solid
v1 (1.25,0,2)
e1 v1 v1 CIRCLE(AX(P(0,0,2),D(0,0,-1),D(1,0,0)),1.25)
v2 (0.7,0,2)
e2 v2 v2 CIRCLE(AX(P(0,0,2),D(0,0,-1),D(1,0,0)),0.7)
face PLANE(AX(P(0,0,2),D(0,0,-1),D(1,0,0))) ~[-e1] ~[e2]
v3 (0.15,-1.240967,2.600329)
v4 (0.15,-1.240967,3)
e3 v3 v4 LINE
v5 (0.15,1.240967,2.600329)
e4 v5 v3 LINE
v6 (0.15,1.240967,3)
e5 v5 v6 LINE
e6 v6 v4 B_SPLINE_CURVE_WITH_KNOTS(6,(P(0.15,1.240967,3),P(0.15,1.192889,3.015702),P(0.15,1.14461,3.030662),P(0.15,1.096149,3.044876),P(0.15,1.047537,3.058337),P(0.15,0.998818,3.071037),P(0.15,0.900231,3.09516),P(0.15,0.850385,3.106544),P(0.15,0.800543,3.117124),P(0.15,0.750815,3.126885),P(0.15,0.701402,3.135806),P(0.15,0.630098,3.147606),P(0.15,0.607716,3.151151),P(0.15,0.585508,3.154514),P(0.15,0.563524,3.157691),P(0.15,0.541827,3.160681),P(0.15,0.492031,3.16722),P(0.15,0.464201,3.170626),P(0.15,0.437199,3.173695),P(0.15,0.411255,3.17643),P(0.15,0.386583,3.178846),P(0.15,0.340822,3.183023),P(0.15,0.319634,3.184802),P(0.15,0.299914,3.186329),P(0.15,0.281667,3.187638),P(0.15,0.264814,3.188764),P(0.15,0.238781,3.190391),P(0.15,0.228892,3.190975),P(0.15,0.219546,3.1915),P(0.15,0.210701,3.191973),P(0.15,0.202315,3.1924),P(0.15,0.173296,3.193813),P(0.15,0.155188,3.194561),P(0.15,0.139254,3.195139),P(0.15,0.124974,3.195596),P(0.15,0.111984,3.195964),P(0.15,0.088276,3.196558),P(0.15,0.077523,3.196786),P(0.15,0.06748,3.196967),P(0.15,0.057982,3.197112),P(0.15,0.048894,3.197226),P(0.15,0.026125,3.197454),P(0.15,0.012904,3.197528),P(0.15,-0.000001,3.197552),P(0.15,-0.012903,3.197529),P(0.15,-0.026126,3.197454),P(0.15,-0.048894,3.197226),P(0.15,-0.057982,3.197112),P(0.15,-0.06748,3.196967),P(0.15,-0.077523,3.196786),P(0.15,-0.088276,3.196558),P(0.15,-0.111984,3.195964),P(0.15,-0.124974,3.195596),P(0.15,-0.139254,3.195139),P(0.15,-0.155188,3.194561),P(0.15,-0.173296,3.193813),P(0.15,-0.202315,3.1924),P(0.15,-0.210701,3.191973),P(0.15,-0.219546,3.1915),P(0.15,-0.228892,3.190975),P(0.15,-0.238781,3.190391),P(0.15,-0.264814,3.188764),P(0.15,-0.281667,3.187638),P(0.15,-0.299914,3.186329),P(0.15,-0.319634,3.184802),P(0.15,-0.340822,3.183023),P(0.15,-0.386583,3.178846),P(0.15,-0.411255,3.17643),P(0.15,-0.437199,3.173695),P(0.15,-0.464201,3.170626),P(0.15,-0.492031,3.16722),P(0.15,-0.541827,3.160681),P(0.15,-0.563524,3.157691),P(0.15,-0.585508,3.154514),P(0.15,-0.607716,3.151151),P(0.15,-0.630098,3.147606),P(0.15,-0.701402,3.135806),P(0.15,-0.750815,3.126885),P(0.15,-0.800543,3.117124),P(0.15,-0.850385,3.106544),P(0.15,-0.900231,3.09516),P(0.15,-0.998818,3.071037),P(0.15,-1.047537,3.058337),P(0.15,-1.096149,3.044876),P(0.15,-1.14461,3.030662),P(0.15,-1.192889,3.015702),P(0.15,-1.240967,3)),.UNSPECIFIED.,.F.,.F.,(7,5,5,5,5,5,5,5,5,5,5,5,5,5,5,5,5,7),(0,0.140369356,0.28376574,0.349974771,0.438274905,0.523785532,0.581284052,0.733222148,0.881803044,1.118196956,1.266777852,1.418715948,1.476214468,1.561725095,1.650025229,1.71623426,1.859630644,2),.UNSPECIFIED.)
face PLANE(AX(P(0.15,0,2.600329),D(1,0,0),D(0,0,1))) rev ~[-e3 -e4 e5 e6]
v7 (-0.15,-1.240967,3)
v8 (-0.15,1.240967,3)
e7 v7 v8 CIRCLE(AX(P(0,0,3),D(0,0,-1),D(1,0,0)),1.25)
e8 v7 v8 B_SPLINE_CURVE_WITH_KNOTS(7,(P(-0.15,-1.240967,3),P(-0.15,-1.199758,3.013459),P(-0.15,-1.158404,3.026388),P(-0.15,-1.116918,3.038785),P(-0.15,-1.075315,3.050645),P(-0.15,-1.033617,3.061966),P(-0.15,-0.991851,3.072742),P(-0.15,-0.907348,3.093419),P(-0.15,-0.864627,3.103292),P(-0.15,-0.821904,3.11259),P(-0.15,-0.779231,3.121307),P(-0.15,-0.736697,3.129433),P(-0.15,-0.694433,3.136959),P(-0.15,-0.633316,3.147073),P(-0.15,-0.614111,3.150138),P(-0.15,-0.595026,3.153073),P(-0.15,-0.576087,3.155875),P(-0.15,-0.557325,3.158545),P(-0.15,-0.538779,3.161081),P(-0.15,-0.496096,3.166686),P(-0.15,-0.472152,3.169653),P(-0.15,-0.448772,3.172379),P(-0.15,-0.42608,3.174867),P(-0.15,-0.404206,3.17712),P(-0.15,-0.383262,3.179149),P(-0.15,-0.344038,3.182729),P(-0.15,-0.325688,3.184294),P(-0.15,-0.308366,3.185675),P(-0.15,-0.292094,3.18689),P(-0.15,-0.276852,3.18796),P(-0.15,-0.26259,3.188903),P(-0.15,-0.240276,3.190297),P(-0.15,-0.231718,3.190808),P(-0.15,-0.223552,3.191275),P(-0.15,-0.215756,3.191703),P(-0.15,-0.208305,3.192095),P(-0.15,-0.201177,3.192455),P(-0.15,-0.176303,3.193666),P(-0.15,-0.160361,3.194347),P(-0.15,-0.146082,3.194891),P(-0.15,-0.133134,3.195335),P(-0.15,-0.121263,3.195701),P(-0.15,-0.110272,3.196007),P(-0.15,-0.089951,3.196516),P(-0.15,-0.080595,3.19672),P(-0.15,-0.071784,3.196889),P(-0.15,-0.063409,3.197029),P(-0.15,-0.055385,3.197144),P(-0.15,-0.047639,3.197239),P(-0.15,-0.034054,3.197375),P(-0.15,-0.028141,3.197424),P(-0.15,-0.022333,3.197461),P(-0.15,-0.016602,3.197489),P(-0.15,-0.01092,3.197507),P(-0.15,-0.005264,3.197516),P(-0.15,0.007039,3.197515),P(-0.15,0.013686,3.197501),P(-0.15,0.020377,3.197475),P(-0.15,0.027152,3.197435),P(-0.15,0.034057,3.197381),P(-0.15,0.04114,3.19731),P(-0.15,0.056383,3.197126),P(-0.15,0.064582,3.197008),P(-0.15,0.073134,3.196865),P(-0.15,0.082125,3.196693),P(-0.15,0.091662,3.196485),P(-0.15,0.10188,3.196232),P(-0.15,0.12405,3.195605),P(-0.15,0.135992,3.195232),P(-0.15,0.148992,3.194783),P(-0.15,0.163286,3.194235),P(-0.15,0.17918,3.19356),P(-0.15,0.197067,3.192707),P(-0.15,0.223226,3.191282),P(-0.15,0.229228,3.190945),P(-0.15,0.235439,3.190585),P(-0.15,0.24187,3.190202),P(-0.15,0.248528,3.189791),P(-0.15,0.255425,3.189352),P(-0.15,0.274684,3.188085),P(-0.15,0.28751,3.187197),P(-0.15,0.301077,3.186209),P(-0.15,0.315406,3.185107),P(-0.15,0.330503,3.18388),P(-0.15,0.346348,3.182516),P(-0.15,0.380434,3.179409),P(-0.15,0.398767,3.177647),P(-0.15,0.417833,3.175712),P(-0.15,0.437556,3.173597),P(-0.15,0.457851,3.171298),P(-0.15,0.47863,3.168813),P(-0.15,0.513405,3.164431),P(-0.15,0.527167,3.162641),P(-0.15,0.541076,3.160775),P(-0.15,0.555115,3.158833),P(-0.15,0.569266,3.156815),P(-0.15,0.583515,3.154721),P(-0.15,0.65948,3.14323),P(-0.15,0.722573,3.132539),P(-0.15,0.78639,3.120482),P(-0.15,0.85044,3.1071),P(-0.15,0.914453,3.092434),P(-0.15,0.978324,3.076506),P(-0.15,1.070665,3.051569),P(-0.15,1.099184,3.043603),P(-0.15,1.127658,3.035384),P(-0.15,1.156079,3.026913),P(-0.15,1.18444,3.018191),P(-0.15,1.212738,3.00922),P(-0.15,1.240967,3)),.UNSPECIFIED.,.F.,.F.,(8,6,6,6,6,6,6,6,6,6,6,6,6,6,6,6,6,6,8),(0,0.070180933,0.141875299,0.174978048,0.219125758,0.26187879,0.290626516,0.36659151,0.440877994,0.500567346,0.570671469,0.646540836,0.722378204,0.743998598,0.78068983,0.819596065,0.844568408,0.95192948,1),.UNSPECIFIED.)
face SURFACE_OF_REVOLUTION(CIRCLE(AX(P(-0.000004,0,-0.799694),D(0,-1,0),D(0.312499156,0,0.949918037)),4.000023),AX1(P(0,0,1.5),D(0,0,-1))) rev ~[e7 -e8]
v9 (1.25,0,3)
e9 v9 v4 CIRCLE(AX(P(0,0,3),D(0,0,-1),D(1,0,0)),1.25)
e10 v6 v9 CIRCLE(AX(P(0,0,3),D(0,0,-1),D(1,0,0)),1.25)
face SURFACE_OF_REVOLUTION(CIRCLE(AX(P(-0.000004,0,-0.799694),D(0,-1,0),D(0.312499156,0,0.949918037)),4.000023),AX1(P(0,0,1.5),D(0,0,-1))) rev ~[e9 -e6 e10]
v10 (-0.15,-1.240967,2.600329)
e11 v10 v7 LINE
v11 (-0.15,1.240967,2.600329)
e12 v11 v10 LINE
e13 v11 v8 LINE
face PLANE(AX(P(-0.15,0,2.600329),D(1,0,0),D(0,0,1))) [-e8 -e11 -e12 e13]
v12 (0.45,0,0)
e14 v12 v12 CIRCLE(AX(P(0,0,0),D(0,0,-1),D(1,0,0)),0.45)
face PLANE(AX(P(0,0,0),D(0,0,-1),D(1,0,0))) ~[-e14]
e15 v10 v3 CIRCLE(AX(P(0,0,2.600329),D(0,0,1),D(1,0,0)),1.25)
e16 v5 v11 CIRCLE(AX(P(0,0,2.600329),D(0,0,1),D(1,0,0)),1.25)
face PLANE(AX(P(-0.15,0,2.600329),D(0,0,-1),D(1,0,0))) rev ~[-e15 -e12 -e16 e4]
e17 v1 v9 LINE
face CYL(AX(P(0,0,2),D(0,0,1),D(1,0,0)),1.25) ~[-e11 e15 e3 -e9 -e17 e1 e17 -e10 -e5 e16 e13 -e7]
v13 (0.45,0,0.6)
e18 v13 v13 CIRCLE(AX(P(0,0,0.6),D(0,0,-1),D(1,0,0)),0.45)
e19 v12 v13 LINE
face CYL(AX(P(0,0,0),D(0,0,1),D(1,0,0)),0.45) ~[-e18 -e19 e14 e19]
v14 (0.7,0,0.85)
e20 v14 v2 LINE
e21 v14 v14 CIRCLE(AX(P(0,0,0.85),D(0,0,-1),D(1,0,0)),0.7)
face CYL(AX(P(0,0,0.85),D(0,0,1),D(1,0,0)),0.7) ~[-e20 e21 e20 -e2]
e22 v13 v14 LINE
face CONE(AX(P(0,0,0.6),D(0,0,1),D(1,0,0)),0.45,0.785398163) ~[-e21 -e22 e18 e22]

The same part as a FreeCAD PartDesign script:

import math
import FreeCAD as App
import Part
import Sketcher
from FreeCAD import Vector
Q = App.Units.Quantity

doc = App.newDocument("Part")
body = doc.addObject("PartDesign::Body", "Body")

sketch1 = body.newObject("Sketcher::SketchObject", "Sketch")
sketch1.AttachmentSupport = (doc.getObject("XZ_Plane"), [""])
sketch1.MapMode = "FlatFace"
sketch1.addGeometry([
    Part.LineSegment(Vector(0, 0, 0), Vector(0.45, 0, 0)),
    Part.LineSegment(Vector(0.45, 0, 0), Vector(0.45, 0.6, 0)),
    Part.LineSegment(Vector(0.45, 0.6, 0), Vector(0.7, 0.85, 0)),
    Part.LineSegment(Vector(0.7, 0.85, 0), Vector(0.7, 2, 0)),
    Part.LineSegment(Vector(0.7, 2, 0), Vector(1.25, 2, 0)),
    Part.LineSegment(Vector(1.25, 2, 0), Vector(1.25, 3, 0)),
    Part.ArcOfCircle(Part.Circle(Vector(-0.000004, -0.799694, 0), Vector(0, 0, 1), 4.000023), math.radians(71.790094), math.radians(89.999946)),
    Part.LineSegment(Vector(0, 3.200329, 0), Vector(0, 0, 0)),
], False)
sketch1.addConstraint([
    Sketcher.Constraint("Coincident", 0, 2, 1, 1),
    Sketcher.Constraint("Coincident", 1, 2, 2, 1),
    Sketcher.Constraint("Coincident", 2, 2, 3, 1),
    Sketcher.Constraint("Coincident", 3, 2, 4, 1),
    Sketcher.Constraint("Coincident", 4, 2, 5, 1),
    Sketcher.Constraint("Coincident", 5, 2, 6, 1),
    Sketcher.Constraint("Coincident", 6, 2, 7, 1),
    Sketcher.Constraint("Coincident", 7, 2, 0, 1),
    Sketcher.Constraint("Horizontal", 0),
    Sketcher.Constraint("Vertical", 1),
    Sketcher.Constraint("Vertical", 3),
    Sketcher.Constraint("Horizontal", 4),
    Sketcher.Constraint("Vertical", 5),
    Sketcher.Constraint("Vertical", 7),
    Sketcher.Constraint("Coincident", 7, 2, -1, 1),
    Sketcher.Constraint("DistanceY", 5, 1, 5, 2, Q("1 mm")),
    Sketcher.Constraint("Angle", 2, Q("45 deg")),
    Sketcher.Constraint("DistanceY", 1, 1, 1, 2, Q("0.6 mm")),
    Sketcher.Constraint("DistanceY", -1, 1, 3, 2, Q("2 mm")),
    Sketcher.Constraint("DistanceX", 0, 1, 0, 2, Q("0.45 mm")),
    Sketcher.Constraint("DistanceX", 4, 1, 4, 2, Q("0.55 mm")),
    Sketcher.Constraint("DistanceY", 3, 1, 3, 2, Q("1.15 mm")),
    Sketcher.Constraint("Radius", 6, Q("4.000023 mm")),
    Sketcher.Constraint("DistanceY", 7, 2, 7, 1, Q("3.200329 mm")),
])
revolution = body.newObject("PartDesign::Revolution", "Revolution")
revolution.Profile = sketch1
revolution.ReferenceAxis = (sketch1, ["V_Axis"])
revolution.Angle = 360

sketch2 = body.newObject("Sketcher::SketchObject", "Sketch001")
sketch2.AttachmentSupport = (doc.getObject("XZ_Plane"), [""])
sketch2.MapMode = "FlatFace"
sketch2.addGeometry([
    Part.LineSegment(Vector(-0.15, 3.250329, 0), Vector(-0.15, 2.600329, 0)),
    Part.LineSegment(Vector(-0.15, 2.600329, 0), Vector(0.15, 2.600329, 0)),
    Part.LineSegment(Vector(0.15, 2.600329, 0), Vector(0.15, 3.250329, 0)),
    Part.LineSegment(Vector(0.15, 3.250329, 0), Vector(-0.15, 3.250329, 0)),
], False)
sketch2.addConstraint([
    Sketcher.Constraint("Coincident", 0, 2, 1, 1),
    Sketcher.Constraint("Coincident", 1, 2, 2, 1),
    Sketcher.Constraint("Coincident", 2, 2, 3, 1),
    Sketcher.Constraint("Coincident", 3, 2, 0, 1),
    Sketcher.Constraint("Vertical", 0),
    Sketcher.Constraint("Horizontal", 1),
    Sketcher.Constraint("Vertical", 2),
    Sketcher.Constraint("Horizontal", 3),
    Sketcher.Constraint("DistanceX", 1, 1, 1, 2, Q("0.3 mm")),
    Sketcher.Constraint("DistanceY", 0, 2, 0, 1, Q("0.65 mm")),
    Sketcher.Constraint("DistanceX", 0, 2, -1, 1, Q("0.15 mm")),
    Sketcher.Constraint("DistanceY", -1, 1, 0, 2, Q("2.600329 mm")),
])
pocket1 = body.newObject("PartDesign::Pocket", "Pocket")
pocket1.Profile = sketch2
pocket1.Length = 25
pocket1.Midplane = True

doc.recompute()
